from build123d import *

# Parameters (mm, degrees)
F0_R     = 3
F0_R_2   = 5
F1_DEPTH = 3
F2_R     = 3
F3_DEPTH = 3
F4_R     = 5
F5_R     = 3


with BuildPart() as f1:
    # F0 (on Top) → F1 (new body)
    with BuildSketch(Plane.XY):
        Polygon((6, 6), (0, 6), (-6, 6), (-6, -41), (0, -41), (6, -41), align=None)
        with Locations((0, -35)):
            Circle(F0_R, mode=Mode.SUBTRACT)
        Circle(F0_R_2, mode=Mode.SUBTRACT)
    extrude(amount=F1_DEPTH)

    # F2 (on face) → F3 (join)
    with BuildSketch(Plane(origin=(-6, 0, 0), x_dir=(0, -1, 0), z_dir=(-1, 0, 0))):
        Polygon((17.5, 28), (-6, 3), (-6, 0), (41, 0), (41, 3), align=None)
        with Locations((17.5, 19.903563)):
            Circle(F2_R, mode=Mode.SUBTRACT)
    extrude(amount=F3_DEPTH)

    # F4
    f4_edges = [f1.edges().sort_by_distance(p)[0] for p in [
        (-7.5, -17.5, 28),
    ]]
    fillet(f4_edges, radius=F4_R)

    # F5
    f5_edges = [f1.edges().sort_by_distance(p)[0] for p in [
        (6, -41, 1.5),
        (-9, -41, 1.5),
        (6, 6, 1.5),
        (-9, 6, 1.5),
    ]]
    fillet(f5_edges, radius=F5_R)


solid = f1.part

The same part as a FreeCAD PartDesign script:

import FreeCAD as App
import Part
import Sketcher
Q = App.Units.Quantity


def edges_at(feature, points):
    """Names of the edges that pass closest to the given points."""
    edges = feature.Shape.Edges
    near = lambda p: min(range(len(edges)), key=lambda i: edges[i].distToShape(Part.Vertex(*p))[0])
    return sorted({f"Edge{near(p) + 1}" for p in points})


def add_polygon(sketch, points):
    """Adds a closed chain of lines whose ends are joined by coincident constraints."""
    first, n = sketch.GeometryCount, len(points)
    for a, b in zip(points, points[1:] + points[:1]):
        sketch.addGeometry(Part.LineSegment(App.Vector(*a, 0), App.Vector(*b, 0)), False)
    for i in range(n):
        sketch.addConstraint(Sketcher.Constraint("Coincident", first + i, 2, first + (i + 1) % n, 1))

doc = App.newDocument("Part")
body = doc.addObject("PartDesign::Body", "Body")

sketch1 = doc.addObject("Sketcher::SketchObject", "Sketch")
body.addObject(sketch1)
sketch1.AttachmentSupport = (doc.XY_Plane, [""])
sketch1.MapMode = "FlatFace"
add_polygon(sketch1, [(6, 6), (-6, 6), (-6, -41), (6, -41)])
sketch1.addGeometry(Part.Circle(App.Vector(0, -35, 0), App.Vector(0, 0, 1), 3), False)
sketch1.addGeometry(Part.Circle(App.Vector(0, 0, 0), App.Vector(0, 0, 1), 5), False)
sketch1.addConstraint(Sketcher.Constraint("Horizontal", 0))
sketch1.addConstraint(Sketcher.Constraint("Vertical", 1))
sketch1.addConstraint(Sketcher.Constraint("Horizontal", 2))
sketch1.addConstraint(Sketcher.Constraint("Vertical", 3))
sketch1.addConstraint(Sketcher.Constraint("Coincident", 5, 3, -1, 1))
sketch1.addConstraint(Sketcher.Constraint("PointOnObject", 4, 3, -2))
sketch1.addConstraint(Sketcher.Constraint("Diameter", 4, Q("6 mm")))
sketch1.addConstraint(Sketcher.Constraint("Diameter", 5, Q("10 mm")))
sketch1.addConstraint(Sketcher.Constraint("DistanceX", 0, 2, 0, 1, Q("12 mm")))
sketch1.addConstraint(Sketcher.Constraint("DistanceY", 1, 2, 1, 1, Q("47 mm")))
sketch1.addConstraint(Sketcher.Constraint("DistanceY", 4, 3, -1, 1, Q("35 mm")))
sketch1.addConstraint(Sketcher.Constraint("DistanceX", 0, 2, -1, 1, Q("6 mm")))
sketch1.addConstraint(Sketcher.Constraint("DistanceY", -1, 1, 0, 2, Q("6 mm")))
pad1 = doc.addObject("PartDesign::Pad", "Pad")
body.addObject(pad1)
pad1.Profile = sketch1
pad1.Length = 3

sketch2 = doc.addObject("Sketcher::SketchObject", "Sketch001")
body.addObject(sketch2)
sketch2.AttachmentSupport = (doc.YZ_Plane, [""])
sketch2.MapMode = "FlatFace"
sketch2.AttachmentOffset = App.Placement(App.Vector(0, 0, -6), App.Rotation())
add_polygon(sketch2, [(-17.5, 28), (6, 3), (6, 0), (-41, 0), (-41, 3)])
sketch2.addGeometry(Part.Circle(App.Vector(-17.5, 19.9, 0), App.Vector(0, 0, 1), 3), False)
sketch2.addConstraint(Sketcher.Constraint("Vertical", 1))
sketch2.addConstraint(Sketcher.Constraint("Horizontal", 2))
sketch2.addConstraint(Sketcher.Constraint("Vertical", 3))
sketch2.addConstraint(Sketcher.Constraint("PointOnObject", 1, 2, -1))
sketch2.addConstraint(Sketcher.Constraint("Horizontal", 0, 2, 3, 2))
sketch2.addConstraint(Sketcher.Constraint("Vertical", 5, 3, 4, 2))
sketch2.addConstraint(Sketcher.Constraint("Equal", 0, 4))
sketch2.addConstraint(Sketcher.Constraint("Diameter", 5, Q("6 mm")))
sketch2.addConstraint(Sketcher.Constraint("DistanceX", 2, 2, 2, 1, Q("47 mm")))
sketch2.addConstraint(Sketcher.Constraint("DistanceY", 1, 2, 1, 1, Q("3 mm")))
sketch2.addConstraint(Sketcher.Constraint("DistanceX", -1, 1, 0, 2, Q("6 mm")))
sketch2.addConstraint(Sketcher.Constraint("DistanceY", -1, 1, 4, 2, Q("28 mm")))
sketch2.addConstraint(Sketcher.Constraint("DistanceY", -1, 1, 5, 3, Q("19.903563 mm")))
pad2 = doc.addObject("PartDesign::Pad", "Pad001")
body.addObject(pad2)
pad2.Profile = sketch2
pad2.Length = 3
pad2.Reversed = True
doc.recompute()

fillet = doc.addObject("PartDesign::Fillet", "Fillet")
body.addObject(fillet)
fillet.Base = (pad2, edges_at(pad2, [(-7.5, -17.5, 28)]))
fillet.Radius = 5
doc.recompute()

fillet2 = doc.addObject("PartDesign::Fillet", "Fillet001")
body.addObject(fillet2)
fillet2.Base = (fillet, edges_at(fillet, [
    (6, -41, 1.5),
    (-9, -41, 1.5),
    (6, 6, 1.5),
    (-9, 6, 1.5),
]))
fillet2.Radius = 3

doc.recompute()
